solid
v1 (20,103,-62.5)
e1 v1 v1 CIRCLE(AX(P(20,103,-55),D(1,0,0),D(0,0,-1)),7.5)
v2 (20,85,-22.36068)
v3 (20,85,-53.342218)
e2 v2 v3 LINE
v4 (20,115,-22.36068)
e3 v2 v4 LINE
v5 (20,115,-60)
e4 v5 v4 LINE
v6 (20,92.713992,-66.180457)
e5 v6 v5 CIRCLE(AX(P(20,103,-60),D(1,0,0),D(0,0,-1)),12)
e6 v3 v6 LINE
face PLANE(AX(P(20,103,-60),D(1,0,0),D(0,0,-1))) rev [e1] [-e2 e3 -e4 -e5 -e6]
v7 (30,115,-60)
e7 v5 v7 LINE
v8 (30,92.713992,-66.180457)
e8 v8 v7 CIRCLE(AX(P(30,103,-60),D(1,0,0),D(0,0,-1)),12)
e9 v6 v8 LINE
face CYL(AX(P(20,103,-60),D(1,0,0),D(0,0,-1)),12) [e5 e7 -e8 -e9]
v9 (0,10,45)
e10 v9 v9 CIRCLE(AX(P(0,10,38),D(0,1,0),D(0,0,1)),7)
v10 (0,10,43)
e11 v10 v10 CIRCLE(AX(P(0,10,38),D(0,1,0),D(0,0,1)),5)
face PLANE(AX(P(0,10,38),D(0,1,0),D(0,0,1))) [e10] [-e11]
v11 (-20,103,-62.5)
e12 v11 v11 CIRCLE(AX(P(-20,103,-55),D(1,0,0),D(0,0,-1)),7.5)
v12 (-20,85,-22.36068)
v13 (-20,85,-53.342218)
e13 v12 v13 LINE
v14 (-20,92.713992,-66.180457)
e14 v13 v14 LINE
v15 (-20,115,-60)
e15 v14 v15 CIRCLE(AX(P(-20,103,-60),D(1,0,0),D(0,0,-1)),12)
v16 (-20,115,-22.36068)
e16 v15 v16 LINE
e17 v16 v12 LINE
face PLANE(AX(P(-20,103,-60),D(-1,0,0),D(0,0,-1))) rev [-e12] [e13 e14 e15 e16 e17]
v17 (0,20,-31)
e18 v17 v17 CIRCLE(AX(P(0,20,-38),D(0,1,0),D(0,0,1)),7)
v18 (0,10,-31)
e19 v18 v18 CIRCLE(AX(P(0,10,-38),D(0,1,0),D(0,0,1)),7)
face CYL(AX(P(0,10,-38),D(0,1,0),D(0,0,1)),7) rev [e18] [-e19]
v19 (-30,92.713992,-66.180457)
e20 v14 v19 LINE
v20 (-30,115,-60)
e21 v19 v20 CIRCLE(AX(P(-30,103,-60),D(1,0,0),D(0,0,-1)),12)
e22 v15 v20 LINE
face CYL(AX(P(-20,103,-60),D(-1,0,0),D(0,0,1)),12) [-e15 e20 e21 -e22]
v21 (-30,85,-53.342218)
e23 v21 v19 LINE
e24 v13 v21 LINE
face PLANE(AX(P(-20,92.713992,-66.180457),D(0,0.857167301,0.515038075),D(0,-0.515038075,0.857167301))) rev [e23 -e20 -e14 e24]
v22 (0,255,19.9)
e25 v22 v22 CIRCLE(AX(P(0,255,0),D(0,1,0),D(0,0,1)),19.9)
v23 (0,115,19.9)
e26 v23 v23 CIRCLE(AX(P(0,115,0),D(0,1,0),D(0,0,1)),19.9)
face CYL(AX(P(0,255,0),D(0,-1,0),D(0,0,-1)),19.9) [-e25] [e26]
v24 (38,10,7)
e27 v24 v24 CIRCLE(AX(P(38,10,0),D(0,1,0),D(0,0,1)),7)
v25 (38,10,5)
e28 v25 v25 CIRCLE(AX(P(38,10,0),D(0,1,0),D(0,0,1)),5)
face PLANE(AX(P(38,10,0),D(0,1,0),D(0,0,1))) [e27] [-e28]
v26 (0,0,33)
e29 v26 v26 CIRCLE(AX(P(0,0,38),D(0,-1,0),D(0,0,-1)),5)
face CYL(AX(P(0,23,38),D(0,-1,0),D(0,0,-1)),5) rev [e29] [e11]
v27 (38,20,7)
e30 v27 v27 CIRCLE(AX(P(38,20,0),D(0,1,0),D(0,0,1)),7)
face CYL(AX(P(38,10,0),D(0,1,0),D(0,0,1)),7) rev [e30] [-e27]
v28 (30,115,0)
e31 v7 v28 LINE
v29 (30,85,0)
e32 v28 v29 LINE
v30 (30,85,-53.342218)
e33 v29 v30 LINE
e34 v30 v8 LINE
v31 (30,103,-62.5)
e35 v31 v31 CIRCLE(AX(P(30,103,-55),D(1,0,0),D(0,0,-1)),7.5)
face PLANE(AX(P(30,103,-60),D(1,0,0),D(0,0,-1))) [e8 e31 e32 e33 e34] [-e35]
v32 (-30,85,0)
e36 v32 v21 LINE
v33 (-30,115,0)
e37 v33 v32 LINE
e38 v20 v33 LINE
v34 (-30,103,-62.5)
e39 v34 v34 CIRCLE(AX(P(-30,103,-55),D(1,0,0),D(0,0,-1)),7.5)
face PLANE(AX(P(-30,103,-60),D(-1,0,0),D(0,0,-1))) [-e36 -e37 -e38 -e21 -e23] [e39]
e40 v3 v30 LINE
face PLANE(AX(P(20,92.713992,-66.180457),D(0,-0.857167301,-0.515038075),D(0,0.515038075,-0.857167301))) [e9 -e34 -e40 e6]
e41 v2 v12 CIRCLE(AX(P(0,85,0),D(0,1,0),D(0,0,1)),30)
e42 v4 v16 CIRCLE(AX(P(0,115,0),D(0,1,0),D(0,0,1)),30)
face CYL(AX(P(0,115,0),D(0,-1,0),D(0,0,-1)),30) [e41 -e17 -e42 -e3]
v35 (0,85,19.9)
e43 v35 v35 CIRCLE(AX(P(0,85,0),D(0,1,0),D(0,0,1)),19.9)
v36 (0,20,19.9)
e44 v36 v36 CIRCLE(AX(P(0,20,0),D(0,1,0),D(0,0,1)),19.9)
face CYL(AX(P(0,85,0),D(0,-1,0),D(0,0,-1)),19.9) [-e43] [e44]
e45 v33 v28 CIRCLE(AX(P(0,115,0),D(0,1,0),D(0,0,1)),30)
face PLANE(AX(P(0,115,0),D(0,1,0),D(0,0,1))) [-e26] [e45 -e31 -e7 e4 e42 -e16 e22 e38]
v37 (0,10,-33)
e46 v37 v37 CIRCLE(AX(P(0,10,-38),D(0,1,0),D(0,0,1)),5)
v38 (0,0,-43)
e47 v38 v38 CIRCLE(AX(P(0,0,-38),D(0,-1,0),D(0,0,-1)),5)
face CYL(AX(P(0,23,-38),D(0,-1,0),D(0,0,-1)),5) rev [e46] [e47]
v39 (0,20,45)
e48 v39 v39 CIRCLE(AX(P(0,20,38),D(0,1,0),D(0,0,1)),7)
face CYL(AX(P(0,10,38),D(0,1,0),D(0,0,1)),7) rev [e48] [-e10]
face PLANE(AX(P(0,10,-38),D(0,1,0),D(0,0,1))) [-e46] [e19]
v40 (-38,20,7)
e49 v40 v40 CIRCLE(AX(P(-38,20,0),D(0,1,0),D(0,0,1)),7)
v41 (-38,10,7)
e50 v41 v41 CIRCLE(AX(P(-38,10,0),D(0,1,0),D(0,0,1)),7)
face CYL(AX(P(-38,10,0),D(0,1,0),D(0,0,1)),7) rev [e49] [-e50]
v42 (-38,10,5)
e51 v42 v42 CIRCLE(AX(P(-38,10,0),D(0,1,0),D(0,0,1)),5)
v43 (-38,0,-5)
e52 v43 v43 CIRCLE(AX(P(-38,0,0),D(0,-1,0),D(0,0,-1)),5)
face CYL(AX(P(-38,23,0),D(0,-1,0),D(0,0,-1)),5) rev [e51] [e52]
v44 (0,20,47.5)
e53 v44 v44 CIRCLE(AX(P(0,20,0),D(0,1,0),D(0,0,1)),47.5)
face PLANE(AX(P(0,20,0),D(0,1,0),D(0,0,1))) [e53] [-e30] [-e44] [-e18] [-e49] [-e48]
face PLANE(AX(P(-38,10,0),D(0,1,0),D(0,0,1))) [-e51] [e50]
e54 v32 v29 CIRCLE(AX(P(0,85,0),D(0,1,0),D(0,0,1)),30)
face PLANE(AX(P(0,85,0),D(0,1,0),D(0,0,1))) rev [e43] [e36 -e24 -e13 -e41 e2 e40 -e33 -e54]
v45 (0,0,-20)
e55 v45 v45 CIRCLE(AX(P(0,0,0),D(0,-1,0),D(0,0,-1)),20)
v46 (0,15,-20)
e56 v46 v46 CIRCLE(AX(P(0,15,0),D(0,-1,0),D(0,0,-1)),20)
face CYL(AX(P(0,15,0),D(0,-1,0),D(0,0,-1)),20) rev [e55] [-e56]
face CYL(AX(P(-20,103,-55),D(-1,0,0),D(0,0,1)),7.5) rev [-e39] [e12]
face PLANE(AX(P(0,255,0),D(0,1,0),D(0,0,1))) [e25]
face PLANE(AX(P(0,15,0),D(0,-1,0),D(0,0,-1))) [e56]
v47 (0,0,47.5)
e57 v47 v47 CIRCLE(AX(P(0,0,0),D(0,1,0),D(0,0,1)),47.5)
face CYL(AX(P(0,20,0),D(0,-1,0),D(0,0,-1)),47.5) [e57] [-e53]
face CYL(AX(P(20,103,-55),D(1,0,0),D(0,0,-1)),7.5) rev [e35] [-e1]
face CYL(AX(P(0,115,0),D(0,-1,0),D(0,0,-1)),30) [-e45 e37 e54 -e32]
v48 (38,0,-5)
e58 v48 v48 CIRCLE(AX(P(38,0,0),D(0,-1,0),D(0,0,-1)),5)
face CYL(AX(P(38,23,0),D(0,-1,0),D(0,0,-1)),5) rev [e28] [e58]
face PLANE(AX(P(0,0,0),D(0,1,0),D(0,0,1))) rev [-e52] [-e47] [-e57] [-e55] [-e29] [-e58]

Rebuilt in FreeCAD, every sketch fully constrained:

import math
import FreeCAD as App
import Part
import Sketcher
from FreeCAD import Vector
Q = App.Units.Quantity

doc = App.newDocument("Part")
body = doc.addObject("PartDesign::Body", "Body")

# Sketch on XZ plane
sketch1 = body.newObject("Sketcher::SketchObject", "Sketch")
sketch1.AttachmentSupport = (doc.getObject("XZ_Plane"), [""])
sketch1.MapMode = "FlatFace"
sketch1.addGeometry(Part.Circle(Vector(0, 0, 0), Vector(0, 0, 1), 48), False)
sketch1.addConstraint(Sketcher.Constraint("Coincident", 0, 3, -1, 1))
sketch1.addConstraint(Sketcher.Constraint("Diameter", 0, 95.0))
pad1 = body.newObject("PartDesign::Pad", "Pad")
pad1.Profile = sketch1
pad1.Length = 20
pad1.Reversed = True

# Sketch on XZ plane
sketch2 = body.newObject("Sketcher::SketchObject", "Sketch001")
sketch2.AttachmentSupport = (doc.getObject("XZ_Plane"), [""])
sketch2.MapMode = "FlatFace"
sketch2.AttachmentOffset = App.Placement(Vector(0, 0, -20), App.Rotation())
sketch2.addGeometry(Part.Circle(Vector(0, 0, 0), Vector(0, 0, 1), 20), False)
sketch2.addConstraint(Sketcher.Constraint("Coincident", 0, 3, -1, 1))
sketch2.addConstraint(Sketcher.Constraint("Diameter", 0, 39.8))
pad2 = body.newObject("PartDesign::Pad", "Pad001")
pad2.Profile = sketch2
pad2.Length = 65
pad2.Reversed = True

# Sketch on XZ plane
sketch3 = body.newObject("Sketcher::SketchObject", "Sketch002")
sketch3.AttachmentSupport = (doc.getObject("XZ_Plane"), [""])
sketch3.MapMode = "FlatFace"
sketch3.AttachmentOffset = App.Placement(Vector(0, 0, -85), App.Rotation())
sketch3.addGeometry(Part.Circle(Vector(0, 0, 0), Vector(0, 0, 1), 30), False)
sketch3.addConstraint(Sketcher.Constraint("Coincident", 0, 3, -1, 1))
sketch3.addConstraint(Sketcher.Constraint("Diameter", 0, 60.0))
pad3 = body.newObject("PartDesign::Pad", "Pad002")
pad3.Profile = sketch3
pad3.Length = 30
pad3.Reversed = True

# Sketch on XZ plane
sketch4 = body.newObject("Sketcher::SketchObject", "Sketch003")
sketch4.AttachmentSupport = (doc.getObject("XZ_Plane"), [""])
sketch4.MapMode = "FlatFace"
sketch4.AttachmentOffset = App.Placement(Vector(0, 0, -115), App.Rotation())
sketch4.addGeometry(Part.Circle(Vector(0, 0, 0), Vector(0, 0, 1), 20), False)
sketch4.addConstraint(Sketcher.Constraint("Coincident", 0, 3, -1, 1))
sketch4.addConstraint(Sketcher.Constraint("Diameter", 0, 39.8))
pad4 = body.newObject("PartDesign::Pad", "Pad003")
pad4.Profile = sketch4
pad4.Length = 140
pad4.Reversed = True

# Sketch on YZ plane
sketch5 = body.newObject("Sketcher::SketchObject", "Sketch004")
sketch5.AttachmentSupport = (doc.getObject("YZ_Plane"), [""])
sketch5.MapMode = "FlatFace"
sketch5.AttachmentOffset = App.Placement(Vector(0, 0, 30), App.Rotation())
sketch5.addGeometry(Part.LineSegment(Vector(115, -60, 0), Vector(115, 0, 0)), False)
sketch5.addGeometry(Part.LineSegment(Vector(115, 0, 0), Vector(85, 0, 0)), False)
sketch5.addGeometry(Part.LineSegment(Vector(85, 0, 0), Vector(85, -53, 0)), False)
sketch5.addGeometry(Part.LineSegment(Vector(85, -53, 0), Vector(93, -66, 0)), False)
sketch5.addGeometry(Part.ArcOfCircle(Part.Circle(Vector(103, -60, 0), Vector(0, 0, 1), 12), math.radians(-149), math.radians(0)), False)
sketch5.addGeometry(Part.Circle(Vector(103, -55, 0), Vector(0, 0, 1), 8), False)
sketch5.addConstraint(Sketcher.Constraint("Coincident", 0, 2, 1, 1))
sketch5.addConstraint(Sketcher.Constraint("Coincident", 1, 2, 2, 1))
sketch5.addConstraint(Sketcher.Constraint("Coincident", 2, 2, 3, 1))
sketch5.addConstraint(Sketcher.Constraint("Tangent", 3, 2, 4, 1))
sketch5.addConstraint(Sketcher.Constraint("Tangent", 4, 2, 0, 1))
sketch5.addConstraint(Sketcher.Constraint("Vertical", 0))
sketch5.addConstraint(Sketcher.Constraint("Horizontal", 1))
sketch5.addConstraint(Sketcher.Constraint("Vertical", 2))
sketch5.addConstraint(Sketcher.Constraint("PointOnObject", 0, 2, -1))
sketch5.addConstraint(Sketcher.Constraint("Vertical", 4, 3, 5, 3))
sketch5.addConstraint(Sketcher.Constraint("Diameter", 5, 15.0))
sketch5.addConstraint(Sketcher.Constraint("Radius", 4, 12.0))
sketch5.addConstraint(Sketcher.Constraint("DistanceX", 1, 2, 1, 1, 30.0))
sketch5.addConstraint(Sketcher.Constraint("DistanceY", 0, 1, 0, 2, 60.0))
sketch5.addConstraint(Sketcher.Constraint("Angle", 3, Q("-59 deg")))
sketch5.addConstraint(Sketcher.Constraint("DistanceX", -1, 1, 4, 3, 103.0))
sketch5.addConstraint(Sketcher.Constraint("DistanceY", 5, 3, -1, 1, 55.0))
pad5 = body.newObject("PartDesign::Pad", "Pad004")
pad5.Profile = sketch5
pad5.Length = 10
pad5.Reversed = True
doc.recompute()

mirrored = body.newObject("PartDesign::Mirrored", "Mirrored")
mirrored.Originals = [pad5]
mirrored.MirrorPlane = (doc.getObject("YZ_Plane"), [""])
body.Tip = mirrored

# Sketch on XZ plane
sketch6 = body.newObject("Sketcher::SketchObject", "Sketch005")
sketch6.AttachmentSupport = (doc.getObject("XZ_Plane"), [""])
sketch6.MapMode = "FlatFace"
sketch6.AttachmentOffset = App.Placement(Vector(0, 0, -20), App.Rotation())
sketch6.addGeometry(Part.Circle(Vector(0, -38, 0), Vector(0, 0, 1), 7), False)
sketch6.addGeometry(Part.Circle(Vector(38, 0, 0), Vector(0, 0, 1), 7), False)
sketch6.addGeometry(Part.Circle(Vector(0, 38, 0), Vector(0, 0, 1), 7), False)
sketch6.addGeometry(Part.Circle(Vector(-38, 0, 0), Vector(0, 0, 1), 7), False)
sketch6.addConstraint(Sketcher.Constraint("Equal", 0, 1))
sketch6.addConstraint(Sketcher.Constraint("Equal", 1, 2))
sketch6.addConstraint(Sketcher.Constraint("Equal", 2, 3))
sketch6.addConstraint(Sketcher.Constraint("Symmetric", 0, 3, 2, 3, -1, 1))
sketch6.addConstraint(Sketcher.Constraint("Symmetric", 1, 3, 3, 3, -1, 1))
sketch6.addConstraint(Sketcher.Constraint("PointOnObject", 0, 3, -2))
sketch6.addConstraint(Sketcher.Constraint("PointOnObject", 1, 3, -1))
sketch6.addConstraint(Sketcher.Constraint("Diameter", 0, 14.0))
sketch6.addConstraint(Sketcher.Constraint("DistanceY", 0, 3, -1, 1, 38.0))
sketch6.addConstraint(Sketcher.Constraint("DistanceX", -1, 1, 1, 3, 38.0))
pocket1 = body.newObject("PartDesign::Pocket", "Pocket")
pocket1.Profile = sketch6
pocket1.Length = 10
pocket1.Reversed = True

# Sketch on XZ plane
sketch7 = body.newObject("Sketcher::SketchObject", "Sketch006")
sketch7.AttachmentSupport = (doc.getObject("XZ_Plane"), [""])
sketch7.MapMode = "FlatFace"
sketch7.addGeometry(Part.Circle(Vector(0, 38, 0), Vector(0, 0, 1), 5), False)
sketch7.addGeometry(Part.Circle(Vector(38, 0, 0), Vector(0, 0, 1), 5), False)
sketch7.addGeometry(Part.Circle(Vector(0, -38, 0), Vector(0, 0, 1), 5), False)
sketch7.addGeometry(Part.Circle(Vector(-38, 0, 0), Vector(0, 0, 1), 5), False)
sketch7.addConstraint(Sketcher.Constraint("Equal", 0, 1))
sketch7.addConstraint(Sketcher.Constraint("Equal", 1, 2))
sketch7.addConstraint(Sketcher.Constraint("Equal", 2, 3))
sketch7.addConstraint(Sketcher.Constraint("Symmetric", 0, 3, 2, 3, -1, 1))
sketch7.addConstraint(Sketcher.Constraint("Symmetric", 1, 3, 3, 3, -1, 1))
sketch7.addConstraint(Sketcher.Constraint("PointOnObject", 0, 3, -2))
sketch7.addConstraint(Sketcher.Constraint("PointOnObject", 1, 3, -1))
sketch7.addConstraint(Sketcher.Constraint("Diameter", 0, 10.0))
sketch7.addConstraint(Sketcher.Constraint("DistanceY", -1, 1, 0, 3, 38.0))
sketch7.addConstraint(Sketcher.Constraint("DistanceX", -1, 1, 1, 3, 38.0))
pocket2 = body.newObject("PartDesign::Pocket", "Pocket001")
pocket2.Profile = sketch7
pocket2.Length = 23

# Sketch on XZ plane
sketch8 = body.newObject("Sketcher::SketchObject", "Sketch007")
sketch8.AttachmentSupport = (doc.getObject("XZ_Plane"), [""])
sketch8.MapMode = "FlatFace"
sketch8.addGeometry(Part.Circle(Vector(0, 0, 0), Vector(0, 0, 1), 20), False)
sketch8.addConstraint(Sketcher.Constraint("Coincident", 0, 3, -1, 1))
sketch8.addConstraint(Sketcher.Constraint("Diameter", 0, 40.0))
pocket3 = body.newObject("PartDesign::Pocket", "Pocket002")
pocket3.Profile = sketch8
pocket3.Length = 15

doc.recompute()
